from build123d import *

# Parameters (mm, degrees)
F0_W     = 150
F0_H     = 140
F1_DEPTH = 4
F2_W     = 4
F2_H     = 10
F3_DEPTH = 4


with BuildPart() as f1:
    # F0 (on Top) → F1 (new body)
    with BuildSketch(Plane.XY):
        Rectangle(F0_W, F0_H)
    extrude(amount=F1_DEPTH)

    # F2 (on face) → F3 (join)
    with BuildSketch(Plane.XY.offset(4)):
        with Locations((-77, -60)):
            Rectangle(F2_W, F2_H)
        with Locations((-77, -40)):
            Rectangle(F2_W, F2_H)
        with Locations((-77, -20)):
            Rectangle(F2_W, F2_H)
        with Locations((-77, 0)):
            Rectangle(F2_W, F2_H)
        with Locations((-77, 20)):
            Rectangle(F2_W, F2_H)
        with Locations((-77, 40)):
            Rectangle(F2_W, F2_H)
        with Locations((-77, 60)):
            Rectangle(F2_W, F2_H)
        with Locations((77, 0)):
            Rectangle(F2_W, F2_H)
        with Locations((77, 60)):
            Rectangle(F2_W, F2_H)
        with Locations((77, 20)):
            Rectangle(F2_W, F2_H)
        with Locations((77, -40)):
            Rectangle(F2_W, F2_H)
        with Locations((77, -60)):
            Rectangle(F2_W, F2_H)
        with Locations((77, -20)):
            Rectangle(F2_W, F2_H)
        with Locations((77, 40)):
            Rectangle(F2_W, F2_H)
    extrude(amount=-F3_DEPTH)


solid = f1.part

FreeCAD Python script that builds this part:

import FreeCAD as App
import Part
import Sketcher

V = App.Vector


def add_polygon(sketch, points):
    """Adds a closed chain of lines whose ends are joined by coincident constraints."""
    first, n = sketch.GeometryCount, len(points)
    for a, b in zip(points, points[1:] + points[:1]):
        sketch.addGeometry(Part.LineSegment(App.Vector(*a, 0), App.Vector(*b, 0)), False)
    for i in range(n):
        sketch.addConstraint(Sketcher.Constraint("Coincident", first + i, 2, first + (i + 1) % n, 1))

doc = App.newDocument("Part")
body = doc.addObject("PartDesign::Body", "Body")

# Sketch on XY plane
sketch1 = body.newObject("Sketcher::SketchObject", "Sketch")
sketch1.AttachmentSupport = (doc.getObject("XY_Plane"), [""])
sketch1.MapMode = "FlatFace"
add_polygon(sketch1, [(-75, 70), (-75, -70), (75, -70), (75, 70)])  # lines 0-3
sketch1.addConstraint(Sketcher.Constraint("Vertical", 0))
sketch1.addConstraint(Sketcher.Constraint("Horizontal", 1))
sketch1.addConstraint(Sketcher.Constraint("Vertical", 2))
sketch1.addConstraint(Sketcher.Constraint("Horizontal", 3))
sketch1.addConstraint(Sketcher.Constraint("Symmetric", 0, 2, 2, 2, -1, 1))
sketch1.addConstraint(Sketcher.Constraint("DistanceX", 1, 1, 1, 2, 150.0))
sketch1.addConstraint(Sketcher.Constraint("DistanceY", 0, 2, 0, 1, 140.0))
pad1 = body.newObject("PartDesign::Pad", "Pad")
pad1.Profile = sketch1
pad1.Length = 4

# Sketch on XY plane
sketch2 = body.newObject("Sketcher::SketchObject", "Sketch001")
sketch2.AttachmentSupport = (doc.getObject("XY_Plane"), [""])
sketch2.MapMode = "FlatFace"
sketch2.AttachmentOffset = App.Placement(V(0, 0, 4), App.Rotation())
add_polygon(sketch2, [(-79, -55), (-79, -65), (-75, -65), (-75, -55)])  # lines 0-3
add_polygon(sketch2, [(-79, -35), (-79, -45), (-75, -45), (-75, -35)])  # lines 4-7
add_polygon(sketch2, [(-79, -15), (-79, -25), (-75, -25), (-75, -15)])  # lines 8-11
add_polygon(sketch2, [(-79, 5), (-79, -5), (-75, -5), (-75, 5)])  # lines 12-15
add_polygon(sketch2, [(-79, 25), (-79, 15), (-75, 15), (-75, 25)])  # lines 16-19
add_polygon(sketch2, [(-79, 45), (-79, 35), (-75, 35), (-75, 45)])  # lines 20-23
add_polygon(sketch2, [(-79, 65), (-79, 55), (-75, 55), (-75, 65)])  # lines 24-27
add_polygon(sketch2, [(75, 5), (75, -5), (79, -5), (79, 5)])  # lines 28-31
add_polygon(sketch2, [(75, 65), (75, 55), (79, 55), (79, 65)])  # lines 32-35
add_polygon(sketch2, [(75, 25), (75, 15), (79, 15), (79, 25)])  # lines 36-39
add_polygon(sketch2, [(75, -35), (75, -45), (79, -45), (79, -35)])  # lines 40-43
add_polygon(sketch2, [(75, -55), (75, -65), (79, -65), (79, -55)])  # lines 44-47
add_polygon(sketch2, [(75, -15), (75, -25), (79, -25), (79, -15)])  # lines 48-51
add_polygon(sketch2, [(75, 45), (75, 35), (79, 35), (79, 45)])  # lines 52-55
sketch2.addConstraint(Sketcher.Constraint("Vertical", 0))
sketch2.addConstraint(Sketcher.Constraint("Horizontal", 1))
sketch2.addConstraint(Sketcher.Constraint("Vertical", 2))
sketch2.addConstraint(Sketcher.Constraint("Horizontal", 3))
sketch2.addConstraint(Sketcher.Constraint("Vertical", 4))
sketch2.addConstraint(Sketcher.Constraint("Horizontal", 5))
sketch2.addConstraint(Sketcher.Constraint("Vertical", 6))
sketch2.addConstraint(Sketcher.Constraint("Horizontal", 7))
sketch2.addConstraint(Sketcher.Constraint("Vertical", 8))
sketch2.addConstraint(Sketcher.Constraint("Horizontal", 9))
sketch2.addConstraint(Sketcher.Constraint("Vertical", 10))
sketch2.addConstraint(Sketcher.Constraint("Horizontal", 11))
sketch2.addConstraint(Sketcher.Constraint("Vertical", 12))
sketch2.addConstraint(Sketcher.Constraint("Horizontal", 13))
sketch2.addConstraint(Sketcher.Constraint("Vertical", 14))
sketch2.addConstraint(Sketcher.Constraint("Horizontal", 15))
sketch2.addConstraint(Sketcher.Constraint("Vertical", 16))
sketch2.addConstraint(Sketcher.Constraint("Horizontal", 17))
sketch2.addConstraint(Sketcher.Constraint("Vertical", 18))
sketch2.addConstraint(Sketcher.Constraint("Horizontal", 19))
sketch2.addConstraint(Sketcher.Constraint("Vertical", 20))
sketch2.addConstraint(Sketcher.Constraint("Horizontal", 21))
sketch2.addConstraint(Sketcher.Constraint("Vertical", 22))
sketch2.addConstraint(Sketcher.Constraint("Horizontal", 23))
sketch2.addConstraint(Sketcher.Constraint("Vertical", 24))
sketch2.addConstraint(Sketcher.Constraint("Horizontal", 25))
sketch2.addConstraint(Sketcher.Constraint("Vertical", 26))
sketch2.addConstraint(Sketcher.Constraint("Horizontal", 27))
sketch2.addConstraint(Sketcher.Constraint("Vertical", 28))
sketch2.addConstraint(Sketcher.Constraint("Horizontal", 29))
sketch2.addConstraint(Sketcher.Constraint("Vertical", 30))
sketch2.addConstraint(Sketcher.Constraint("Horizontal", 31))
sketch2.addConstraint(Sketcher.Constraint("Vertical", 32))
sketch2.addConstraint(Sketcher.Constraint("Horizontal", 33))
sketch2.addConstraint(Sketcher.Constraint("Vertical", 34))
sketch2.addConstraint(Sketcher.Constraint("Horizontal", 35))
sketch2.addConstraint(Sketcher.Constraint("Vertical", 36))
sketch2.addConstraint(Sketcher.Constraint("Horizontal", 37))
sketch2.addConstraint(Sketcher.Constraint("Vertical", 38))
sketch2.addConstraint(Sketcher.Constraint("Horizontal", 39))
sketch2.addConstraint(Sketcher.Constraint("Vertical", 40))
sketch2.addConstraint(Sketcher.Constraint("Horizontal", 41))
sketch2.addConstraint(Sketcher.Constraint("Vertical", 42))
sketch2.addConstraint(Sketcher.Constraint("Horizontal", 43))
sketch2.addConstraint(Sketcher.Constraint("Vertical", 44))
sketch2.addConstraint(Sketcher.Constraint("Horizontal", 45))
sketch2.addConstraint(Sketcher.Constraint("Vertical", 46))
sketch2.addConstraint(Sketcher.Constraint("Horizontal", 47))
sketch2.addConstraint(Sketcher.Constraint("Vertical", 48))
sketch2.addConstraint(Sketcher.Constraint("Horizontal", 49))
sketch2.addConstraint(Sketcher.Constraint("Vertical", 50))
sketch2.addConstraint(Sketcher.Constraint("Horizontal", 51))
sketch2.addConstraint(Sketcher.Constraint("Vertical", 52))
sketch2.addConstraint(Sketcher.Constraint("Horizontal", 53))
sketch2.addConstraint(Sketcher.Constraint("Vertical", 54))
sketch2.addConstraint(Sketcher.Constraint("Horizontal", 55))
sketch2.addConstraint(Sketcher.Constraint("Symmetric", 14, 2, 28, 2, -1, 1))
sketch2.addConstraint(Sketcher.Constraint("Symmetric", 12, 2, 30, 2, -1, 1))
sketch2.addConstraint(Sketcher.Constraint("Symmetric", 2, 2, 32, 2, -1, 1))
sketch2.addConstraint(Sketcher.Constraint("Symmetric", 0, 2, 34, 2, -1, 1))
sketch2.addConstraint(Sketcher.Constraint("Symmetric", 10, 2, 36, 2, -1, 1))
sketch2.addConstraint(Sketcher.Constraint("Symmetric", 8, 2, 38, 2, -1, 1))
sketch2.addConstraint(Sketcher.Constraint("Symmetric", 22, 2, 40, 2, -1, 1))
sketch2.addConstraint(Sketcher.Constraint("Symmetric", 20, 2, 42, 2, -1, 1))
sketch2.addConstraint(Sketcher.Constraint("Symmetric", 26, 2, 44, 2, -1, 1))
sketch2.addConstraint(Sketcher.Constraint("Symmetric", 24, 2, 46, 2, -1, 1))
sketch2.addConstraint(Sketcher.Constraint("Symmetric", 18, 2, 48, 2, -1, 1))
sketch2.addConstraint(Sketcher.Constraint("Symmetric", 16, 2, 50, 2, -1, 1))
sketch2.addConstraint(Sketcher.Constraint("Symmetric", 6, 2, 52, 2, -1, 1))
sketch2.addConstraint(Sketcher.Constraint("Symmetric", 4, 2, 54, 2, -1, 1))
sketch2.addConstraint(Sketcher.Constraint("Symmetric", 25, 2, 32, 2, -2))
sketch2.addConstraint(Sketcher.Constraint("Symmetric", 27, 2, 34, 2, -2))
sketch2.addConstraint(Sketcher.Constraint("Symmetric", 17, 2, 36, 2, -2))
sketch2.addConstraint(Sketcher.Constraint("Symmetric", 19, 2, 38, 2, -2))
sketch2.addConstraint(Sketcher.Constraint("Symmetric", 5, 2, 40, 2, -2))
sketch2.addConstraint(Sketcher.Constraint("Symmetric", 7, 2, 42, 2, -2))
sketch2.addConstraint(Sketcher.Constraint("Horizontal", 13, 2, 28, 2))
sketch2.addConstraint(Sketcher.Constraint("Vertical", 3, 2, 4, 2))
sketch2.addConstraint(Sketcher.Constraint("Vertical", 2, 2, 5, 2))
sketch2.addConstraint(Sketcher.Constraint("Vertical", 7, 2, 8, 2))
sketch2.addConstraint(Sketcher.Constraint("Vertical", 6, 2, 9, 2))
sketch2.addConstraint(Sketcher.Constraint("Vertical", 11, 2, 12, 2))
sketch2.addConstraint(Sketcher.Constraint("Vertical", 10, 2, 13, 2))
sketch2.addConstraint(Sketcher.Constraint("Equal", 2, 4))
sketch2.addConstraint(Sketcher.Constraint("Equal", 6, 8))
sketch2.addConstraint(Sketcher.Constraint("Equal", 10, 12))
sketch2.addConstraint(Sketcher.Constraint("DistanceX", 1, 1, 1, 2, 4.0))
sketch2.addConstraint(Sketcher.Constraint("DistanceY", 0, 2, 0, 1, 10.0))
sketch2.addConstraint(Sketcher.Constraint("DistanceX", 0, 2, -1, 1, 79.0))
sketch2.addConstraint(Sketcher.Constraint("DistanceY", 0, 2, -1, 1, 65.0))
sketch2.addConstraint(Sketcher.Constraint("DistanceY", 4, 2, -1, 1, 45.0))
sketch2.addConstraint(Sketcher.Constraint("DistanceY", 8, 2, -1, 1, 25.0))
pad2 = body.newObject("PartDesign::Pad", "Pad001")
pad2.Profile = sketch2
pad2.Length = 4
pad2.Reversed = True

doc.recompute()
